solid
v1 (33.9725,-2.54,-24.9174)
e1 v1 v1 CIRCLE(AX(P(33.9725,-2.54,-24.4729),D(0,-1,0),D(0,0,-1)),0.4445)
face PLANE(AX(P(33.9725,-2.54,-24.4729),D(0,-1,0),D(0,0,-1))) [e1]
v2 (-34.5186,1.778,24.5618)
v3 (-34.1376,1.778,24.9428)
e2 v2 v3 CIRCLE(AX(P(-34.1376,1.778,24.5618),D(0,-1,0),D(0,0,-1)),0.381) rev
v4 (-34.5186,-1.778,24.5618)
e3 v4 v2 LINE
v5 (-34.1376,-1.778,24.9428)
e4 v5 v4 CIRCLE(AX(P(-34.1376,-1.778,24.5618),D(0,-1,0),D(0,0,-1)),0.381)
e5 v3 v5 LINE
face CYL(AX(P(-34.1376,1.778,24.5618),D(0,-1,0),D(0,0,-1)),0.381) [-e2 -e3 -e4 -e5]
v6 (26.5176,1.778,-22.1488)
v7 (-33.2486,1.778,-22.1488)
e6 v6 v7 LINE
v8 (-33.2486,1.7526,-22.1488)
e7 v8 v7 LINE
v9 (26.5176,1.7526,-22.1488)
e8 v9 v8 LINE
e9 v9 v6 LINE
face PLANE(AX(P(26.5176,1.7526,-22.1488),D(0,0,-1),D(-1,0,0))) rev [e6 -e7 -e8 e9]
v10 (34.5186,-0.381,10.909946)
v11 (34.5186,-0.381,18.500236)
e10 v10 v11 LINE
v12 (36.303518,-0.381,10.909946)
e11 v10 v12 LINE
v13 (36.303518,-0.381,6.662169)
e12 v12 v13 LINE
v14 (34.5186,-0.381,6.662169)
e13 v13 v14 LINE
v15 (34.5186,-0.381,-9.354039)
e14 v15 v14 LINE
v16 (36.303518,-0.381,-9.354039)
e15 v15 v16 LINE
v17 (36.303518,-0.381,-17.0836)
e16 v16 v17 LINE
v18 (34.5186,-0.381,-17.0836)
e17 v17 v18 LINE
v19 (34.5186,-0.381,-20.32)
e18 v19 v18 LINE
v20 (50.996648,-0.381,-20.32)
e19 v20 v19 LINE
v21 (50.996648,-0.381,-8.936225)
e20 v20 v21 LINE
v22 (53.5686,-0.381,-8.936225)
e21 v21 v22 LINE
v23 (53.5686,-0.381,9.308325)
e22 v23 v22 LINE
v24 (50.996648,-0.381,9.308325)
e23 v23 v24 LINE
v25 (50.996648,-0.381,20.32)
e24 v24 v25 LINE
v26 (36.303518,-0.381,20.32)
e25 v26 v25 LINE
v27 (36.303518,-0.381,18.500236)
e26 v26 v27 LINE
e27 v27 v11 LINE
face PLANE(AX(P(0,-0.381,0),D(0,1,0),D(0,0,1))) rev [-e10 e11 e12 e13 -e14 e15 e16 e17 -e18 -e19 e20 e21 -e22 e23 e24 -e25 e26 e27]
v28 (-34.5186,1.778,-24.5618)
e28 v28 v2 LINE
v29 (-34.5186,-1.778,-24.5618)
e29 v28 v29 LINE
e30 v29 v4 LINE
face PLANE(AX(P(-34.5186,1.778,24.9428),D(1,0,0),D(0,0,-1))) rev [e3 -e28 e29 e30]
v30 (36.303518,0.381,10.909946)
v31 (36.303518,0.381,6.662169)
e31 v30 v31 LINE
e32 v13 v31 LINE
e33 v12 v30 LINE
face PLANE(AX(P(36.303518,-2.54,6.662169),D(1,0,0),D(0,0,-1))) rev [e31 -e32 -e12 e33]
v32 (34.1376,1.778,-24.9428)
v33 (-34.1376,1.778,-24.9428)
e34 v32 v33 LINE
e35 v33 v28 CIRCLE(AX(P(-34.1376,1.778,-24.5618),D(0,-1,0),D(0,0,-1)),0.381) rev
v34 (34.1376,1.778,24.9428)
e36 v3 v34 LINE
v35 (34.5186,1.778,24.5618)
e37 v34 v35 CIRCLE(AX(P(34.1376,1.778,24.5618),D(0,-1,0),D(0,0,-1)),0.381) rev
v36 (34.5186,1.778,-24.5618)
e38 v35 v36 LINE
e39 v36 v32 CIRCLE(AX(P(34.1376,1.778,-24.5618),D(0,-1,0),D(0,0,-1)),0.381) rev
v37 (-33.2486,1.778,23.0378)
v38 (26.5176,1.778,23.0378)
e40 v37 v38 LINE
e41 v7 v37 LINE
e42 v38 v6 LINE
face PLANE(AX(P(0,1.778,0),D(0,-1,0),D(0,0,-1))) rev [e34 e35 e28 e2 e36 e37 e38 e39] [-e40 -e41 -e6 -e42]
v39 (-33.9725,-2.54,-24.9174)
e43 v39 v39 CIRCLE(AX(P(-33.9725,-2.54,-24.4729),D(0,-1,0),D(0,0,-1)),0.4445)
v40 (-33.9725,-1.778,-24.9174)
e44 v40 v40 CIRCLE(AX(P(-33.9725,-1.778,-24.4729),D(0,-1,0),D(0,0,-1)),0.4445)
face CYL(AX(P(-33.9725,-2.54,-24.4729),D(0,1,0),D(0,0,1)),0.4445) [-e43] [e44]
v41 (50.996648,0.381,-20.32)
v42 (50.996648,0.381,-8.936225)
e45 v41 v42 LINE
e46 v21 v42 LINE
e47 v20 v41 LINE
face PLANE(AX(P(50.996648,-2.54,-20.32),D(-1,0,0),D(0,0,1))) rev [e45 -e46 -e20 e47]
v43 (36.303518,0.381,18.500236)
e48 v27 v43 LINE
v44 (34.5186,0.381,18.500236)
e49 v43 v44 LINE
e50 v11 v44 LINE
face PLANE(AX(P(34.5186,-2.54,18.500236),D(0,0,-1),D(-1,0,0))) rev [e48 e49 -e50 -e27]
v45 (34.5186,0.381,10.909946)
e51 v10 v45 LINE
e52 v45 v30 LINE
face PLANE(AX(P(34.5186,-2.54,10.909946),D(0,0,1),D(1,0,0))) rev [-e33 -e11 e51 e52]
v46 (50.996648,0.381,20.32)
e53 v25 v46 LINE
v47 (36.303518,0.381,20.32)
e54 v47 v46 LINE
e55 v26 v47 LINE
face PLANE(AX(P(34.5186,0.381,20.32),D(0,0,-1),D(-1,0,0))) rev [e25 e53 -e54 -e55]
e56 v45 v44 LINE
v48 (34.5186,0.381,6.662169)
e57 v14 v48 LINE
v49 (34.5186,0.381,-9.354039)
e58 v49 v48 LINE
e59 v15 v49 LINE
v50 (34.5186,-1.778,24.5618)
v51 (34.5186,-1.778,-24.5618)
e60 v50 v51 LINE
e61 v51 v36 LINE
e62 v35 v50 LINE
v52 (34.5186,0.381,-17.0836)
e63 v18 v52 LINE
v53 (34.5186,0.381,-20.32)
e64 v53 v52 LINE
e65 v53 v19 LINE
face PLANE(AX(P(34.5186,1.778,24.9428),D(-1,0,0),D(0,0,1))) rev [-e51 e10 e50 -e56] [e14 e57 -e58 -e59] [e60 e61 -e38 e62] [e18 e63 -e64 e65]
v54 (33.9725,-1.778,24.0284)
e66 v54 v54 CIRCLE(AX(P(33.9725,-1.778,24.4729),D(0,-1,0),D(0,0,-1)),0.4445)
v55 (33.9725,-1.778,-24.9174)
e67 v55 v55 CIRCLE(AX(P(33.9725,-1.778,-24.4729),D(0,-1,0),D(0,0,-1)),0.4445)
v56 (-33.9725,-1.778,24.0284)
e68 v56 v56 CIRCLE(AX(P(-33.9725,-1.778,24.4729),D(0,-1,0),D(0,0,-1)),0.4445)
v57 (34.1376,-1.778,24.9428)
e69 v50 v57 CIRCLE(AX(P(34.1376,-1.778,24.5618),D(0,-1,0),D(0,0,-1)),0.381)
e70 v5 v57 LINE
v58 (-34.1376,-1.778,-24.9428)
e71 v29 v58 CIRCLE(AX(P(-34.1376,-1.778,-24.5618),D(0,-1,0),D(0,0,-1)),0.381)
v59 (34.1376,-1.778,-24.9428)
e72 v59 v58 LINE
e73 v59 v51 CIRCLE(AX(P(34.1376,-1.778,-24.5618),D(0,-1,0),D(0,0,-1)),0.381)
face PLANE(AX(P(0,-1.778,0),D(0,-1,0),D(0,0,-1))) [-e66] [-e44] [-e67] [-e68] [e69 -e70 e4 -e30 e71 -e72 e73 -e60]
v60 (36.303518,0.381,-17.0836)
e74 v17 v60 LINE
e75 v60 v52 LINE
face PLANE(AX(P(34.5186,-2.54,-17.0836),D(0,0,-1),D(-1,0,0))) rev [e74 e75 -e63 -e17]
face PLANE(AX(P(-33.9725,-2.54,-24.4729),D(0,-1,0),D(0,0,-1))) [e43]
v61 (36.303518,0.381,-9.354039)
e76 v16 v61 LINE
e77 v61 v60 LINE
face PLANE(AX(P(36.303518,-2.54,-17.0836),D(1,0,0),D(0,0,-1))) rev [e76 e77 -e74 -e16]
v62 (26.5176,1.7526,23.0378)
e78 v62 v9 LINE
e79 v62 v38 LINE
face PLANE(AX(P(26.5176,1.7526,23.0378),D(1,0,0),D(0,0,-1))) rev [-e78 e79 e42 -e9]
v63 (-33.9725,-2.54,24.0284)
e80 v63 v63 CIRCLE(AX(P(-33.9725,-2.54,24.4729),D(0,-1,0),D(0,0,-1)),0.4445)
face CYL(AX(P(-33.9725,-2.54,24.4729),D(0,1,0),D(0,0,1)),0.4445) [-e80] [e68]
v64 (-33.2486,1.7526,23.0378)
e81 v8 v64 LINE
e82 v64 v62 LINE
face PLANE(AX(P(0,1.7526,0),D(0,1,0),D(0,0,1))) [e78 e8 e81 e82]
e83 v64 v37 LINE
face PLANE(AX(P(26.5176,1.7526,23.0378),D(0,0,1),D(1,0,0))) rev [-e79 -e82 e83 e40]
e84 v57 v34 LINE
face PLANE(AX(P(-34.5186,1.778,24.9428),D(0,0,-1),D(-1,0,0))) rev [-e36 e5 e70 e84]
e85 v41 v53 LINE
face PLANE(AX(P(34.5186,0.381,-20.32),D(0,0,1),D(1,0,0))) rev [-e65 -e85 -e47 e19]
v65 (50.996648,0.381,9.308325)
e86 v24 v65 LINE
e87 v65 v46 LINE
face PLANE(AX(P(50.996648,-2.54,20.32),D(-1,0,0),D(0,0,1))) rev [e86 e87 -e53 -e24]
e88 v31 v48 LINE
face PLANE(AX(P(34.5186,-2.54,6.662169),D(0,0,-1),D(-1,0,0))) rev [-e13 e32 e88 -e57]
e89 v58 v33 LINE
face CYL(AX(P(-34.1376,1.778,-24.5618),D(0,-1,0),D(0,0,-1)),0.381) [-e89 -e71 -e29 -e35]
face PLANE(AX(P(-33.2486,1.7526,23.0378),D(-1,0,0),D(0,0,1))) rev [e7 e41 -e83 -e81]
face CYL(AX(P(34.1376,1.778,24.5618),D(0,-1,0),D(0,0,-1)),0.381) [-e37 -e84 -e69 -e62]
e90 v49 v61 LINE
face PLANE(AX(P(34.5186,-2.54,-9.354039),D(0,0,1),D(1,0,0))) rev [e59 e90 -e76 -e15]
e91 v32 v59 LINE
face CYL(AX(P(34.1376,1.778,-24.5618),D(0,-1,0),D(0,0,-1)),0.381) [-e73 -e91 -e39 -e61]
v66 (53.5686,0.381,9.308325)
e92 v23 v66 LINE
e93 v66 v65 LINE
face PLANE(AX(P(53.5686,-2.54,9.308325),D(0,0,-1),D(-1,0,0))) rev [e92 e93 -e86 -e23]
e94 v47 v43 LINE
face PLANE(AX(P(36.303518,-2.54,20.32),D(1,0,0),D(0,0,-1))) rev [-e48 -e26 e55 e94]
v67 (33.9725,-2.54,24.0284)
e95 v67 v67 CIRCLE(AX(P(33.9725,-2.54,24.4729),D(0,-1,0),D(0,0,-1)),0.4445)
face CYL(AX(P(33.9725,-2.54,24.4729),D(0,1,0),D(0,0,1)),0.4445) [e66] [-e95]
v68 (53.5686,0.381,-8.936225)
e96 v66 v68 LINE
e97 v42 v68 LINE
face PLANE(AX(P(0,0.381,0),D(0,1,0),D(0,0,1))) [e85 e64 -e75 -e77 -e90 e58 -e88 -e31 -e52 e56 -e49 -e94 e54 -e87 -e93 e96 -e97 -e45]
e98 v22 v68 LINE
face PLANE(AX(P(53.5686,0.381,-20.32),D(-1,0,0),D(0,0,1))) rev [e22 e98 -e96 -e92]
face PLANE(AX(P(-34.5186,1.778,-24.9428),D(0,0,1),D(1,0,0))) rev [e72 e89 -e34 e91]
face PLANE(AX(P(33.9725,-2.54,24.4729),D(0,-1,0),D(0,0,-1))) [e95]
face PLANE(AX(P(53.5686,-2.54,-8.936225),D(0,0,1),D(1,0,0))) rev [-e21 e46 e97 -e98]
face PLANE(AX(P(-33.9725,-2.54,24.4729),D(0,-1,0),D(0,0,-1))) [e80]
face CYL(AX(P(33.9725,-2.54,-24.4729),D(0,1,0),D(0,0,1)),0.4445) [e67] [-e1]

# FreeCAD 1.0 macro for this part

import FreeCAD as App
import Part
import Sketcher

V = App.Vector
Q = App.Units.Quantity


def edges_at(feature, points):
    """Names of the edges that pass closest to the given points."""
    edges = feature.Shape.Edges
    near = lambda p: min(range(len(edges)), key=lambda i: edges[i].distToShape(Part.Vertex(*p))[0])
    return sorted({f"Edge{near(p) + 1}" for p in points})


def add_polygon(sketch, points):
    """Adds a closed chain of lines whose ends are joined by coincident constraints."""
    first, n = sketch.GeometryCount, len(points)
    for a, b in zip(points, points[1:] + points[:1]):
        sketch.addGeometry(Part.LineSegment(App.Vector(*a, 0), App.Vector(*b, 0)), False)
    for i in range(n):
        sketch.addConstraint(Sketcher.Constraint("Coincident", first + i, 2, first + (i + 1) % n, 1))

doc = App.newDocument("Part")
body = doc.addObject("PartDesign::Body", "Body")

sketch1 = doc.addObject("Sketcher::SketchObject", "Sketch")
body.addObject(sketch1)
sketch1.AttachmentSupport = (doc.XZ_Plane, [""])
sketch1.MapMode = "FlatFace"
add_polygon(sketch1, [(-34.5186, -24.9428), (-34.5186, 24.9428), (34.5186, 24.9428), (34.5186, -24.9428)])
sketch1.addConstraint([
    Sketcher.Constraint("Vertical", 0),
    Sketcher.Constraint("Horizontal", 1),
    Sketcher.Constraint("Vertical", 2),
    Sketcher.Constraint("Horizontal", 3),
    Sketcher.Constraint("Symmetric", 0, 2, 2, 2, -1, 1),
    Sketcher.Constraint("DistanceX", 1, 1, 1, 2, Q("2.718 in")),
    Sketcher.Constraint("DistanceY", 0, 1, 0, 2, Q("1.964 in")),
])
pad1 = doc.addObject("PartDesign::Pad", "Pad")
body.addObject(pad1)
pad1.Profile = sketch1
pad1.Length = Q("0.14 in")
pad1.Midplane = True
doc.recompute()

fillet = doc.addObject("PartDesign::Fillet", "Fillet")
body.addObject(fillet)
fillet.Base = (pad1, edges_at(pad1, [
    (34.519, 0, 24.943),
    (-34.519, 0, 24.943),
    (-34.519, 0, -24.943),
    (34.519, 0, -24.943),
]))
fillet.Radius = Q("0.015 in")

sketch2 = doc.addObject("Sketcher::SketchObject", "Sketch001")
body.addObject(sketch2)
sketch2.AttachmentSupport = (doc.XZ_Plane, [""])
sketch2.MapMode = "FlatFace"
sketch2.AttachmentOffset = App.Placement(V(0, 0, -0.07 * 25.4), App.Rotation())
add_polygon(sketch2, [(-33.2486, -22.1488), (-33.2486, 23.0378), (26.5176, 23.0378), (26.5176, -22.1488)])
sketch2.addConstraint([
    Sketcher.Constraint("Vertical", 0),
    Sketcher.Constraint("Horizontal", 1),
    Sketcher.Constraint("Vertical", 2),
    Sketcher.Constraint("Horizontal", 3),
    Sketcher.Constraint("DistanceX", 1, 1, 1, 2, Q("2.353 in")),
    Sketcher.Constraint("DistanceY", 0, 1, 0, 2, Q("1.779 in")),
    Sketcher.Constraint("DistanceX", 0, 2, -1, 1, Q("1.309 in")),
    Sketcher.Constraint("DistanceY", -1, 1, 0, 2, Q("0.907 in")),
])
pocket1 = doc.addObject("PartDesign::Pocket", "Pocket")
body.addObject(pocket1)
pocket1.Profile = sketch2
pocket1.Length = Q("0.001 in")
pocket1.Reversed = True

sketch3 = doc.addObject("Sketcher::SketchObject", "Sketch002")
body.addObject(sketch3)
sketch3.AttachmentSupport = (doc.XZ_Plane, [""])
sketch3.MapMode = "FlatFace"
sketch3.AttachmentOffset = App.Placement(V(0, 0, 0.07 * 25.4), App.Rotation())
sketch3.addGeometry([
    Part.Circle(V(-33.9725, 24.4729, 0), V(0, 0, 1), 0.4445),
    Part.Circle(V(33.9725, 24.4729, 0), V(0, 0, 1), 0.4445),
    Part.Circle(V(33.9725, -24.4729, 0), V(0, 0, 1), 0.4445),
    Part.Circle(V(-33.9725, -24.4729, 0), V(0, 0, 1), 0.4445),
], False)
sketch3.addConstraint([
    Sketcher.Constraint("Equal", 0, 1),
    Sketcher.Constraint("Equal", 1, 2),
    Sketcher.Constraint("Equal", 2, 3),
    Sketcher.Constraint("Symmetric", 0, 3, 2, 3, -1, 1),
    Sketcher.Constraint("Symmetric", 1, 3, 3, 3, -1, 1),
    Sketcher.Constraint("Symmetric", 0, 3, 1, 3, -2),
    Sketcher.Constraint("Diameter", 0, Q("0.035 in")),
    Sketcher.Constraint("DistanceX", 0, 3, 1, 3, Q("2.675 in")),
    Sketcher.Constraint("DistanceY", 2, 3, 1, 3, Q("1.927 in")),
])
pad2 = doc.addObject("PartDesign::Pad", "Pad001")
body.addObject(pad2)
pad2.Profile = sketch3
pad2.Length = Q("0.03 in")

sketch4 = doc.addObject("Sketcher::SketchObject", "Sketch003")
body.addObject(sketch4)
sketch4.AttachmentSupport = (doc.XZ_Plane, [""])
sketch4.MapMode = "FlatFace"
add_polygon(sketch4, [(34.5186, -20.32), (34.5186, 20.32), (53.5686, 20.32), (53.5686, -20.32)])
sketch4.addConstraint([
    Sketcher.Constraint("Vertical", 0),
    Sketcher.Constraint("Horizontal", 1),
    Sketcher.Constraint("Vertical", 2),
    Sketcher.Constraint("Horizontal", 3),
    Sketcher.Constraint("DistanceY", 0, 1, 0, 2, Q("1.6 in")),
    Sketcher.Constraint("DistanceX", 1, 1, 1, 2, Q("0.75 in")),
    Sketcher.Constraint("DistanceY", -1, 1, 0, 2, Q("0.8 in")),
    Sketcher.Constraint("DistanceX", -1, 1, 0, 2, Q("1.359 in")),
])
pad3 = doc.addObject("PartDesign::Pad", "Pad002")
body.addObject(pad3)
pad3.Profile = sketch4
pad3.Length = Q("0.03 in")
pad3.Midplane = True

sketch5 = doc.addObject("Sketcher::SketchObject", "Sketch004")
body.addObject(sketch5)
sketch5.AttachmentSupport = (doc.XZ_Plane, [""])
sketch5.MapMode = "FlatFace"
sketch5.AttachmentOffset = App.Placement(V(0, 0, -0.015 * 25.4), App.Rotation())
add_polygon(sketch5, [(50.996648, -20.32), (50.996648, -8.936225), (53.5686, -8.936225), (53.5686, -20.32)])
add_polygon(sketch5, [(50.996648, 9.308325), (50.996648, 20.32), (53.5686, 20.32), (53.5686, 9.308325)])
add_polygon(sketch5, [(34.5186, 18.500236), (34.5186, 20.32), (36.303518, 20.32), (36.303518, 18.500236)])
add_polygon(sketch5, [(34.5186, 6.662169), (34.5186, 10.909946), (36.303518, 10.909946), (36.303518, 6.662169)])
add_polygon(sketch5, [(34.5186, -17.0836), (34.5186, -9.354039), (36.303518, -9.354039), (36.303518, -17.0836)])
sketch5.addConstraint([
    Sketcher.Constraint("Vertical", 0),
    Sketcher.Constraint("Horizontal", 1),
    Sketcher.Constraint("Vertical", 2),
    Sketcher.Constraint("Horizontal", 3),
    Sketcher.Constraint("Vertical", 4),
    Sketcher.Constraint("Horizontal", 5),
    Sketcher.Constraint("Vertical", 6),
    Sketcher.Constraint("Horizontal", 7),
    Sketcher.Constraint("Vertical", 8),
    Sketcher.Constraint("Horizontal", 9),
    Sketcher.Constraint("Vertical", 10),
    Sketcher.Constraint("Horizontal", 11),
    Sketcher.Constraint("Vertical", 12),
    Sketcher.Constraint("Horizontal", 13),
    Sketcher.Constraint("Vertical", 14),
    Sketcher.Constraint("Horizontal", 15),
    Sketcher.Constraint("Vertical", 16),
    Sketcher.Constraint("Horizontal", 17),
    Sketcher.Constraint("Vertical", 18),
    Sketcher.Constraint("Horizontal", 19),
    Sketcher.Constraint("Symmetric", 3, 2, 4, 2, -1),
    Sketcher.Constraint("Horizontal", 5, 2, 8, 2),
    Sketcher.Constraint("Vertical", 2, 2, 5, 2),
    Sketcher.Constraint("Vertical", 11, 2, 12, 2),
    Sketcher.Constraint("Vertical", 10, 2, 13, 2),
    Sketcher.Constraint("Vertical", 15, 2, 16, 2),
    Sketcher.Constraint("Vertical", 14, 2, 17, 2),
    Sketcher.Constraint("DistanceY", 2, 2, -1, 1, Q("0.8 in")),
    Sketcher.Constraint("DistanceX", 8, 2, 5, 2, Q("0.75 in")),
    Sketcher.Constraint("DistanceX", -1, 1, 1, 2, Q("2.109 in")),
    Sketcher.Constraint("DistanceX", 1, 1, 1, 2, 2.571952),
    Sketcher.Constraint("DistanceX", 9, 1, 9, 2, 1.784918),
    Sketcher.Constraint("DistanceY", 16, 1, 16, 2, 7.729561),
    Sketcher.Constraint("DistanceY", 18, 2, -1, 1, 17.0836),
    Sketcher.Constraint("DistanceY", 0, 1, 0, 2, 11.383775),
    Sketcher.Constraint("DistanceY", 4, 1, 4, 2, 11.011675),
    Sketcher.Constraint("DistanceY", 8, 1, 8, 2, 1.819764),
    Sketcher.Constraint("DistanceY", 12, 1, 12, 2, 4.247777),
    Sketcher.Constraint("DistanceY", -1, 1, 14, 2, 6.662169),
])
pocket2 = doc.addObject("PartDesign::Pocket", "Pocket001")
body.addObject(pocket2)
pocket2.Profile = sketch5
pocket2.Type = "ThroughAll"
pocket2.Reversed = True

doc.recompute()
